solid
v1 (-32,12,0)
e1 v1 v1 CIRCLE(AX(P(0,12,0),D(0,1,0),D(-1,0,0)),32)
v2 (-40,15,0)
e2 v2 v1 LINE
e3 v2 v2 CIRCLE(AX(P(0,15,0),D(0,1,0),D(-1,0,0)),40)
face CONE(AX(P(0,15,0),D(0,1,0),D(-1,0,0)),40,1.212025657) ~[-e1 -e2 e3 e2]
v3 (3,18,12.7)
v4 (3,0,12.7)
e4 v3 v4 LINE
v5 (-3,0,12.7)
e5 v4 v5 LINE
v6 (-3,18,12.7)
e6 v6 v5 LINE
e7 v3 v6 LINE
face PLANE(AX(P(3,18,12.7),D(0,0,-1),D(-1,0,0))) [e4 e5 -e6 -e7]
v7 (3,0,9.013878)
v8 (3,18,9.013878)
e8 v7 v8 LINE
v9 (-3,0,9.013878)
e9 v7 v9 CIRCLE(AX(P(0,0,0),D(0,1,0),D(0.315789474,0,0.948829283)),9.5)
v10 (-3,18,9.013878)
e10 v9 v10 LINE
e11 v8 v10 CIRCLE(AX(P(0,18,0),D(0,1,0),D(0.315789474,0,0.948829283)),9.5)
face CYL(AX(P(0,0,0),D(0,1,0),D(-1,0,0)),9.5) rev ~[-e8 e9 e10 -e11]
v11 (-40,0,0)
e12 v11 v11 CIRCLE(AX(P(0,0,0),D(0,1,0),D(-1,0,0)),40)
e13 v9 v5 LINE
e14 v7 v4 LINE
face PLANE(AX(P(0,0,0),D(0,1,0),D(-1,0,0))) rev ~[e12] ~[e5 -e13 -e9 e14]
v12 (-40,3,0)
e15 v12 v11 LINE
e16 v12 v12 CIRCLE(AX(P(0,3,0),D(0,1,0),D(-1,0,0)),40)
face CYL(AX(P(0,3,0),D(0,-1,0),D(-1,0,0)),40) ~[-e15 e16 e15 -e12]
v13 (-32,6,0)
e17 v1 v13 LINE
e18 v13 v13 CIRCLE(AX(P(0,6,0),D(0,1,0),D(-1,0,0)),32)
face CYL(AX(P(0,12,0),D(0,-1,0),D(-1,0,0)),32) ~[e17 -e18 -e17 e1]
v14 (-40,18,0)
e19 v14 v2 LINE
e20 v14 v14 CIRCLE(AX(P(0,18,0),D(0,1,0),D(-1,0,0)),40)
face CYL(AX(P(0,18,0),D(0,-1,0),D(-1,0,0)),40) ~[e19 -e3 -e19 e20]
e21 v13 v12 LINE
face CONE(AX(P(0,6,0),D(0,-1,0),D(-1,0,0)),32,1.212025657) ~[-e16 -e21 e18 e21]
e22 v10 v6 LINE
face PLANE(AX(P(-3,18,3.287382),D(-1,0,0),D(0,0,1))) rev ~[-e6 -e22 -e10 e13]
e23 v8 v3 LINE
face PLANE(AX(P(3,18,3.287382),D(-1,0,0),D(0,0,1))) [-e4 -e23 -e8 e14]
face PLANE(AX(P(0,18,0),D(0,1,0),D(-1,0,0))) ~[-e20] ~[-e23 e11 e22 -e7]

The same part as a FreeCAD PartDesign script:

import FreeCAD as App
import Part
import Sketcher
Q = App.Units.Quantity

doc = App.newDocument("Part")
body = doc.addObject("PartDesign::Body", "Body")

# Sketch on XY plane
sketch1 = body.newObject("Sketcher::SketchObject", "Sketch")
sketch1.AttachmentSupport = (doc.getObject("XY_Plane"), [""])
sketch1.MapMode = "FlatFace"
sketch1.addGeometry([
    Part.LineSegment(App.Vector(-40, 0, 0), App.Vector(-9.5, 0, 0)),  # 0
    Part.LineSegment(App.Vector(-9.5, 0, 0), App.Vector(-9.5, 18, 0)),  # 1
    Part.LineSegment(App.Vector(-9.5, 18, 0), App.Vector(-40, 18, 0)),  # 2
    Part.LineSegment(App.Vector(-40, 18, 0), App.Vector(-40, 15, 0)),  # 3
    Part.LineSegment(App.Vector(-40, 15, 0), App.Vector(-32, 12, 0)),  # 4
    Part.LineSegment(App.Vector(-32, 12, 0), App.Vector(-32, 6, 0)),  # 5
    Part.LineSegment(App.Vector(-32, 6, 0), App.Vector(-40, 3, 0)),  # 6
    Part.LineSegment(App.Vector(-40, 3, 0), App.Vector(-40, 0, 0)),  # 7
], False)
sketch1.addConstraint([
    Sketcher.Constraint("Coincident", 0, 2, 1, 1),
    Sketcher.Constraint("Coincident", 1, 2, 2, 1),
    Sketcher.Constraint("Coincident", 2, 2, 3, 1),
    Sketcher.Constraint("Coincident", 3, 2, 4, 1),
    Sketcher.Constraint("Coincident", 4, 2, 5, 1),
    Sketcher.Constraint("Coincident", 5, 2, 6, 1),
    Sketcher.Constraint("Coincident", 6, 2, 7, 1),
    Sketcher.Constraint("Coincident", 7, 2, 0, 1),
    Sketcher.Constraint("Horizontal", 0),
    Sketcher.Constraint("Vertical", 1),
    Sketcher.Constraint("Horizontal", 2),
    Sketcher.Constraint("Vertical", 3),
    Sketcher.Constraint("Vertical", 5),
    Sketcher.Constraint("Vertical", 7),
    Sketcher.Constraint("PointOnObject", 0, 2, -1),
    Sketcher.Constraint("Vertical", 3, 2, 6, 2),
    Sketcher.Constraint("Equal", 3, 7),
    Sketcher.Constraint("Equal", 4, 6),
    Sketcher.Constraint("DistanceY", 1, 1, 1, 2, Q("18 mm")),
    Sketcher.Constraint("DistanceY", 3, 2, 3, 1, Q("3 mm")),
    Sketcher.Constraint("DistanceY", 5, 2, 5, 1, Q("6 mm")),
    Sketcher.Constraint("DistanceX", 0, 1, 0, 2, Q("30.5 mm")),
    Sketcher.Constraint("DistanceX", 2, 2, -1, 1, Q("40 mm")),
    Sketcher.Constraint("DistanceX", 4, 2, -1, 1, Q("32 mm")),
])
revolution = body.newObject("PartDesign::Revolution", "Revolution")
revolution.Profile = sketch1
revolution.ReferenceAxis = (sketch1, ["V_Axis"])
revolution.Angle = 360

# Sketch on XZ plane
sketch2 = body.newObject("Sketcher::SketchObject", "Sketch001")
sketch2.AttachmentSupport = (doc.getObject("XZ_Plane"), [""])
sketch2.MapMode = "FlatFace"
sketch2.AttachmentOffset = App.Placement(App.Vector(0, 0, -18), App.Rotation())
sketch2.addGeometry([
    Part.LineSegment(App.Vector(3, 13, 0), App.Vector(3, 3, 0)),
    Part.LineSegment(App.Vector(3, 3, 0), App.Vector(-3, 3, 0)),
    Part.LineSegment(App.Vector(-3, 3, 0), App.Vector(-3, 13, 0)),
    Part.LineSegment(App.Vector(-3, 13, 0), App.Vector(3, 13, 0)),
], False)
sketch2.addConstraint([
    Sketcher.Constraint("Coincident", 0, 2, 1, 1),
    Sketcher.Constraint("Coincident", 1, 2, 2, 1),
    Sketcher.Constraint("Coincident", 2, 2, 3, 1),
    Sketcher.Constraint("Coincident", 3, 2, 0, 1),
    Sketcher.Constraint("Vertical", 0),
    Sketcher.Constraint("Horizontal", 1),
    Sketcher.Constraint("Vertical", 2),
    Sketcher.Constraint("Horizontal", 3),
    Sketcher.Constraint("DistanceX", 1, 2, 1, 1, Q("6 mm")),
    Sketcher.Constraint("DistanceX", -1, 1, 0, 2, Q("3 mm")),
    Sketcher.Constraint("DistanceY", -1, 1, 2, 2, Q("12.7 mm")),
    Sketcher.Constraint("DistanceY", 0, 2, 0, 1, Q("9.412618 mm")),
])
pocket1 = body.newObject("PartDesign::Pocket", "Pocket")
pocket1.Profile = sketch2
pocket1.Length = 25
pocket1.Reversed = True

doc.recompute()
